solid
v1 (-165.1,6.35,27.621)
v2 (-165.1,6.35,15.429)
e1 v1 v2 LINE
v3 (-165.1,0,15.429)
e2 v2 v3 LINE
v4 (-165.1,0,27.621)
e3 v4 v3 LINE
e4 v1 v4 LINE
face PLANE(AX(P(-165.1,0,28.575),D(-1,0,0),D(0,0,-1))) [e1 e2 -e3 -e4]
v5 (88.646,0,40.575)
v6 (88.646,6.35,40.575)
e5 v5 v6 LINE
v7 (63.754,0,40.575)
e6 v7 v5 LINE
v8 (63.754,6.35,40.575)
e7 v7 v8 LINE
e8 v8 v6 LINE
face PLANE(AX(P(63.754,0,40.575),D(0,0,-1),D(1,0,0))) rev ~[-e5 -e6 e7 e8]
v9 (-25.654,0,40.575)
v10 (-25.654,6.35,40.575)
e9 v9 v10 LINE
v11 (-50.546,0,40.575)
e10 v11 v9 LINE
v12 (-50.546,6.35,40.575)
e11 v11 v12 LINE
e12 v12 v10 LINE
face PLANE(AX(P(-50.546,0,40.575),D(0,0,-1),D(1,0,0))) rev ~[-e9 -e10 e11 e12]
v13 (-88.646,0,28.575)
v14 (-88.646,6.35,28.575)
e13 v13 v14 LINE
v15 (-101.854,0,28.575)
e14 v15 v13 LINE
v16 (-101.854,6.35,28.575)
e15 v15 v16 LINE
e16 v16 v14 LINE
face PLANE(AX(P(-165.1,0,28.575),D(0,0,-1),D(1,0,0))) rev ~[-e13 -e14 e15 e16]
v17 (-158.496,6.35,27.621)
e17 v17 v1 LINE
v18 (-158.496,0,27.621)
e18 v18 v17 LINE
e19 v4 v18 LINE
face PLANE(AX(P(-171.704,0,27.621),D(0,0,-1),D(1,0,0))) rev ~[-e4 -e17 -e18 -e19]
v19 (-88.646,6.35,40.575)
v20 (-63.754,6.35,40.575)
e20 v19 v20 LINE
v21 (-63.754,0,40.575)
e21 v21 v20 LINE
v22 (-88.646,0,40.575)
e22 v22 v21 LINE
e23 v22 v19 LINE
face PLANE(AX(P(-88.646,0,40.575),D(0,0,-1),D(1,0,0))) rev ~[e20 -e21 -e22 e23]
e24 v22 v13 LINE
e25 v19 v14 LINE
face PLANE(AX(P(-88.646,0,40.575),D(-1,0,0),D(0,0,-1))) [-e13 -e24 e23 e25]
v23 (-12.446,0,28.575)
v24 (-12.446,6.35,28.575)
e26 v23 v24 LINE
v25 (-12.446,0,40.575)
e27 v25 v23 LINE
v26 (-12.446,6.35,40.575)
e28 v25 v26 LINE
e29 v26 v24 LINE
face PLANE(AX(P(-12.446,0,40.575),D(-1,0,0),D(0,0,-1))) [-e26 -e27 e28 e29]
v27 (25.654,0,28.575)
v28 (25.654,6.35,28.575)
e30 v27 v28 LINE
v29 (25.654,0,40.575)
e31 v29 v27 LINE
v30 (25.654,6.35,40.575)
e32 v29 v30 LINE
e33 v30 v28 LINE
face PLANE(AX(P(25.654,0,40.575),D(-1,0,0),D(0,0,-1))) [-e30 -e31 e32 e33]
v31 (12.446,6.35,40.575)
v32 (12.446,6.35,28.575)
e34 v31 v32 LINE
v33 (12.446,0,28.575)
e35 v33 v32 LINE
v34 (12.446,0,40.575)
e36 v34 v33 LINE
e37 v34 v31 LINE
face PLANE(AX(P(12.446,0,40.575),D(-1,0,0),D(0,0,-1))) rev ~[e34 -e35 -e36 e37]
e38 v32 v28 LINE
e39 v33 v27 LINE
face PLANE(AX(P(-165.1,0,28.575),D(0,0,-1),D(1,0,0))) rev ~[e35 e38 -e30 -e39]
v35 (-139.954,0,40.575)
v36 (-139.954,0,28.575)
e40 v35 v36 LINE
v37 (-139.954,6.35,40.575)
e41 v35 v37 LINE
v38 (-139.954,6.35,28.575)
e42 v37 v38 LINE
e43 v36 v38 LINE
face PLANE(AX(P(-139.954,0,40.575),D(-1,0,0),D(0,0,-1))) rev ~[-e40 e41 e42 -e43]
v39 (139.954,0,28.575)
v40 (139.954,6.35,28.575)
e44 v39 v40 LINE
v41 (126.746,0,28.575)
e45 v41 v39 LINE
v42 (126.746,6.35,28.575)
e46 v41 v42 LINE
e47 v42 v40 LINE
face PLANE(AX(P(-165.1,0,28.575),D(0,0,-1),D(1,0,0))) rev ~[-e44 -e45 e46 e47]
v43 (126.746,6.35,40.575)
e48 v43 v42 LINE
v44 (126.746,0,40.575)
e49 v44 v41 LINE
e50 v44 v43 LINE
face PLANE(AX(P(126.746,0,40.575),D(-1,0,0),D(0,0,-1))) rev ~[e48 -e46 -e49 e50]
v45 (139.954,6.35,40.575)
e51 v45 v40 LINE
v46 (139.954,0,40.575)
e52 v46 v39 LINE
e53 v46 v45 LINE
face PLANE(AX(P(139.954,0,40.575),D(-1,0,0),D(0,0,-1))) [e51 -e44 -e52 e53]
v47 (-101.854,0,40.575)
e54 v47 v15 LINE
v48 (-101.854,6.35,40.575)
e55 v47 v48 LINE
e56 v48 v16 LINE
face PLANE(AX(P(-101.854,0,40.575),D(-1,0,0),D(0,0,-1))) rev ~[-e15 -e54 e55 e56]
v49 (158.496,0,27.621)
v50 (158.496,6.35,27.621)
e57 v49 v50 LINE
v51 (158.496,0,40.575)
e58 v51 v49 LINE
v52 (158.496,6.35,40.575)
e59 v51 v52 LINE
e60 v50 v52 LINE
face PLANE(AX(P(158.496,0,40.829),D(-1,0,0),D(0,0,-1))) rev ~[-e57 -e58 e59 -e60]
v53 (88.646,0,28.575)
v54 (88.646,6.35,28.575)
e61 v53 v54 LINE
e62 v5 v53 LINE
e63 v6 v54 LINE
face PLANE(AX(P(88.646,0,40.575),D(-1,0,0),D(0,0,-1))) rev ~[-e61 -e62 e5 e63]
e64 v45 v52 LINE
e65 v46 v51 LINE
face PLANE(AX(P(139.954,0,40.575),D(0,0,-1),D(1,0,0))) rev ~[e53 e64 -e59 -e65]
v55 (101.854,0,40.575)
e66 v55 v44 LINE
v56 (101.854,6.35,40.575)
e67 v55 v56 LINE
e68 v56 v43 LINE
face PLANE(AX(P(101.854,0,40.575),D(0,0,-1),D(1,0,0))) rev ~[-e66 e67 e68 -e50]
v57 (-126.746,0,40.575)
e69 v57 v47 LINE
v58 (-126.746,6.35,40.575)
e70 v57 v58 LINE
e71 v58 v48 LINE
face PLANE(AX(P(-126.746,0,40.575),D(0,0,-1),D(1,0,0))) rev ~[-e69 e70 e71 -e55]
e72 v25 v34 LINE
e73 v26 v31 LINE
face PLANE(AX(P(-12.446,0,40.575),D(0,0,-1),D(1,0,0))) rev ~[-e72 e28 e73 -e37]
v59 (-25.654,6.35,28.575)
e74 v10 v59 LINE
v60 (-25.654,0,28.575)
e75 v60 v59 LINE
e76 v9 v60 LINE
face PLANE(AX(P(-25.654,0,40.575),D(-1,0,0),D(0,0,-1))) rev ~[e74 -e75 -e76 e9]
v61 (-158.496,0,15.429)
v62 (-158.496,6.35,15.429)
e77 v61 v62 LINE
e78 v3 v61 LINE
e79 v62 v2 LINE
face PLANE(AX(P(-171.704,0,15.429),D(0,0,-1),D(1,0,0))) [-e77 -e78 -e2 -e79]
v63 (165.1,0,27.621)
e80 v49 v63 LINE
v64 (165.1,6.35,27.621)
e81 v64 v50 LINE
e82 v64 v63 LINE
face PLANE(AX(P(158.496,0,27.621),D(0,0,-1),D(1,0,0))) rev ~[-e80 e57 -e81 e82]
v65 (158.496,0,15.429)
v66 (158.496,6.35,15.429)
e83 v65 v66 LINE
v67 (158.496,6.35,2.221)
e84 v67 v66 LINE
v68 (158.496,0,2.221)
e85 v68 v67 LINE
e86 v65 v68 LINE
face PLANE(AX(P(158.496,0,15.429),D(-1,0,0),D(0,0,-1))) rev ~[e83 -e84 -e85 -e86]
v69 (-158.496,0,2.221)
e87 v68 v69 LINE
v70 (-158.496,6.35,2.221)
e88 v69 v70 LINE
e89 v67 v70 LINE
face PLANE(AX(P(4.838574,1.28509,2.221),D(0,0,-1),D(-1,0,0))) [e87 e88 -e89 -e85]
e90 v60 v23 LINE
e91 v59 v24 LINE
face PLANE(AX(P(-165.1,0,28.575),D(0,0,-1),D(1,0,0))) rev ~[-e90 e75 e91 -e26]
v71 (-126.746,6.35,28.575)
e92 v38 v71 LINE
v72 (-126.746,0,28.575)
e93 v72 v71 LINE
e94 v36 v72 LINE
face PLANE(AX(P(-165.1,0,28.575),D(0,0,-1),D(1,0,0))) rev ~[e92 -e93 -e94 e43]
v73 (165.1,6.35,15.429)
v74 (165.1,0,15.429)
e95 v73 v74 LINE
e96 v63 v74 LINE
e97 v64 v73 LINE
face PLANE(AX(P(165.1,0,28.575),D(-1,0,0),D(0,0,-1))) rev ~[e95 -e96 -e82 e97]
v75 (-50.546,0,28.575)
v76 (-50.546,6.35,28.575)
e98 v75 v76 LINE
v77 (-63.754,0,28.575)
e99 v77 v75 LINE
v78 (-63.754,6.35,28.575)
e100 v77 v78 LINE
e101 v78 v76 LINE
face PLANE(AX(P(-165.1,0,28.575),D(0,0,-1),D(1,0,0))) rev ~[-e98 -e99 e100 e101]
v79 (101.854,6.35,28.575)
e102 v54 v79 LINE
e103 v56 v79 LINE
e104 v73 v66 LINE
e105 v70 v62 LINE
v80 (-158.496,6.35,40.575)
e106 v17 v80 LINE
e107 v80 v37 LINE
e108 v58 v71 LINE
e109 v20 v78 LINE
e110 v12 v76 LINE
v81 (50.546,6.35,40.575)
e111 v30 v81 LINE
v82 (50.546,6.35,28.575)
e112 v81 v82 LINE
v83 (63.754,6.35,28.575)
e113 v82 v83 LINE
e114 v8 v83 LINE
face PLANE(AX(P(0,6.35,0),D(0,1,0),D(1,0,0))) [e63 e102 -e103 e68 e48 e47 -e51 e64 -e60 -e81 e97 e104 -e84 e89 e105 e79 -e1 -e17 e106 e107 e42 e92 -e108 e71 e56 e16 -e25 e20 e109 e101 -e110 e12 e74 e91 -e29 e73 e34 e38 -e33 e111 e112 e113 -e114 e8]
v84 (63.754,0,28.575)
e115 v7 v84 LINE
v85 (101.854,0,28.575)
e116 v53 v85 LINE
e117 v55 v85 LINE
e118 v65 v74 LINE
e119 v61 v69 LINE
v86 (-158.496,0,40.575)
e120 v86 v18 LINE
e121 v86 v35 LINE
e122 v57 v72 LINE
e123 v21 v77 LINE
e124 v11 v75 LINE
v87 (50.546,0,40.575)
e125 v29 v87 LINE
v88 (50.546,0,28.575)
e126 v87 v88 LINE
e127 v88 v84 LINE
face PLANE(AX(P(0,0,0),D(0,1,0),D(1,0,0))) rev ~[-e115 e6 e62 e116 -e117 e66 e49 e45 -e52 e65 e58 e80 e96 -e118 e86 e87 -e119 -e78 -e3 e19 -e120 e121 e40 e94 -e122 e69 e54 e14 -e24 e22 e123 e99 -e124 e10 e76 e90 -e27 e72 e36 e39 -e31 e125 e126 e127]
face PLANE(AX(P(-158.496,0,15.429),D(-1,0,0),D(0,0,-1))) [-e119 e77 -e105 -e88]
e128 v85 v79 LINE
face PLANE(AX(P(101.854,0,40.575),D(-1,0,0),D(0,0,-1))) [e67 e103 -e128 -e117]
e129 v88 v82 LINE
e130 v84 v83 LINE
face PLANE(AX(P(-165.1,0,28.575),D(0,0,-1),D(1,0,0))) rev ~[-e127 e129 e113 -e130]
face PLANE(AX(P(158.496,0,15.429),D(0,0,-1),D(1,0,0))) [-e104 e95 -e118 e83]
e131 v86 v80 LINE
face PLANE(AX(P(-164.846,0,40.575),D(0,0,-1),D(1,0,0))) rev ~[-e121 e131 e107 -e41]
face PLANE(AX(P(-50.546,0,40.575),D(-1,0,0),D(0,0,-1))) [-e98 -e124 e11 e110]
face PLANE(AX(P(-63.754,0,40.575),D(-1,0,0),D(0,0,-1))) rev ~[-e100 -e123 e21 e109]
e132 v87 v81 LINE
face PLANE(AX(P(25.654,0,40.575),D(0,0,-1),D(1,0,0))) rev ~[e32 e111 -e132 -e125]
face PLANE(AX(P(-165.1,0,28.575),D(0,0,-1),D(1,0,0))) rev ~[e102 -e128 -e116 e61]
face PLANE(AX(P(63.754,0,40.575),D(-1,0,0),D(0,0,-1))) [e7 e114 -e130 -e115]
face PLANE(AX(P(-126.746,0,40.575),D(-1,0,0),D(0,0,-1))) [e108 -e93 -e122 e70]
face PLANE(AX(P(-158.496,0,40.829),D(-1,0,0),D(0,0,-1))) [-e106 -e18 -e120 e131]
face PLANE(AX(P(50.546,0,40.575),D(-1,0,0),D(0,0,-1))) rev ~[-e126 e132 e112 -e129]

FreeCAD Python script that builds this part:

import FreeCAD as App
import Part
import Sketcher
from FreeCAD import Vector
Q = App.Units.Quantity


def add_polygon(sketch, points):
    """Adds a closed chain of lines whose ends are joined by coincident constraints."""
    first, n = sketch.GeometryCount, len(points)
    for a, b in zip(points, points[1:] + points[:1]):
        sketch.addGeometry(Part.LineSegment(App.Vector(*a, 0), App.Vector(*b, 0)), False)
    for i in range(n):
        sketch.addConstraint(Sketcher.Constraint("Coincident", first + i, 2, first + (i + 1) % n, 1))

doc = App.newDocument("Part")
body = doc.addObject("PartDesign::Body", "Body")

# Sketch on XZ plane
sketch1 = body.newObject("Sketcher::SketchObject", "Sketch")
sketch1.AttachmentSupport = (doc.getObject("XZ_Plane"), [""])
sketch1.MapMode = "FlatFace"
add_polygon(sketch1, [(-165, -29), (-165, 29), (165, 29), (165, -29)])  # lines 0-3
sketch1.addConstraint(Sketcher.Constraint("Vertical", 0))
sketch1.addConstraint(Sketcher.Constraint("Horizontal", 1))
sketch1.addConstraint(Sketcher.Constraint("Vertical", 2))
sketch1.addConstraint(Sketcher.Constraint("Horizontal", 3))
sketch1.addConstraint(Sketcher.Constraint("Symmetric", 0, 2, 2, 2, -1, 1))
sketch1.addConstraint(Sketcher.Constraint("DistanceX", 1, 1, 1, 2, Q("13 in")))
sketch1.addConstraint(Sketcher.Constraint("DistanceY", 0, 1, 0, 2, Q("2.25 in")))
pad1 = body.newObject("PartDesign::Pad", "Pad")
pad1.Profile = sketch1
pad1.Length = Q("0.25 in")
pad1.Reversed = True

# Sketch on XZ plane
sketch2 = body.newObject("Sketcher::SketchObject", "Sketch001")
sketch2.AttachmentSupport = (doc.getObject("XZ_Plane"), [""])
sketch2.MapMode = "FlatFace"
add_polygon(sketch2, [(-127, 29), (-127, 41), (-102, 41), (-102, 29)])  # lines 0-3
add_polygon(sketch2, [(-89, 29), (-89, 41), (-64, 41), (-64, 29)])  # lines 4-7
add_polygon(sketch2, [(-51, 29), (-51, 41), (-26, 41), (-26, 29)])  # lines 8-11
add_polygon(sketch2, [(-12, 29), (-12, 41), (12, 41), (12, 29)])  # lines 12-15
add_polygon(sketch2, [(26, 29), (26, 41), (51, 41), (51, 29)])  # lines 16-19
add_polygon(sketch2, [(64, 29), (64, 41), (89, 41), (89, 29)])  # lines 20-23
add_polygon(sketch2, [(102, 29), (102, 41), (127, 41), (127, 29)])  # lines 24-27
add_polygon(sketch2, [(140, 29), (140, 41), (165, 41), (165, 29)])  # lines 28-31
add_polygon(sketch2, [(-165, 29), (-165, 41), (-140, 41), (-140, 29)])  # lines 32-35
sketch2.addConstraint(Sketcher.Constraint("Vertical", 0))
sketch2.addConstraint(Sketcher.Constraint("Horizontal", 1))
sketch2.addConstraint(Sketcher.Constraint("Vertical", 2))
sketch2.addConstraint(Sketcher.Constraint("Horizontal", 3))
sketch2.addConstraint(Sketcher.Constraint("Vertical", 4))
sketch2.addConstraint(Sketcher.Constraint("Horizontal", 5))
sketch2.addConstraint(Sketcher.Constraint("Vertical", 6))
sketch2.addConstraint(Sketcher.Constraint("Horizontal", 7))
sketch2.addConstraint(Sketcher.Constraint("Vertical", 8))
sketch2.addConstraint(Sketcher.Constraint("Horizontal", 9))
sketch2.addConstraint(Sketcher.Constraint("Vertical", 10))
sketch2.addConstraint(Sketcher.Constraint("Horizontal", 11))
sketch2.addConstraint(Sketcher.Constraint("Vertical", 12))
sketch2.addConstraint(Sketcher.Constraint("Horizontal", 13))
sketch2.addConstraint(Sketcher.Constraint("Vertical", 14))
sketch2.addConstraint(Sketcher.Constraint("Horizontal", 15))
sketch2.addConstraint(Sketcher.Constraint("Vertical", 16))
sketch2.addConstraint(Sketcher.Constraint("Horizontal", 17))
sketch2.addConstraint(Sketcher.Constraint("Vertical", 18))
sketch2.addConstraint(Sketcher.Constraint("Horizontal", 19))
sketch2.addConstraint(Sketcher.Constraint("Vertical", 20))
sketch2.addConstraint(Sketcher.Constraint("Horizontal", 21))
sketch2.addConstraint(Sketcher.Constraint("Vertical", 22))
sketch2.addConstraint(Sketcher.Constraint("Horizontal", 23))
sketch2.addConstraint(Sketcher.Constraint("Vertical", 24))
sketch2.addConstraint(Sketcher.Constraint("Horizontal", 25))
sketch2.addConstraint(Sketcher.Constraint("Vertical", 26))
sketch2.addConstraint(Sketcher.Constraint("Horizontal", 27))
sketch2.addConstraint(Sketcher.Constraint("Vertical", 28))
sketch2.addConstraint(Sketcher.Constraint("Horizontal", 29))
sketch2.addConstraint(Sketcher.Constraint("Vertical", 30))
sketch2.addConstraint(Sketcher.Constraint("Horizontal", 31))
sketch2.addConstraint(Sketcher.Constraint("Vertical", 32))
sketch2.addConstraint(Sketcher.Constraint("Horizontal", 33))
sketch2.addConstraint(Sketcher.Constraint("Vertical", 34))
sketch2.addConstraint(Sketcher.Constraint("Horizontal", 35))
sketch2.addConstraint(Sketcher.Constraint("Symmetric", 9, 2, 16, 2, -2))
sketch2.addConstraint(Sketcher.Constraint("Symmetric", 11, 2, 18, 2, -2))
sketch2.addConstraint(Sketcher.Constraint("Symmetric", 5, 2, 20, 2, -2))
sketch2.addConstraint(Sketcher.Constraint("Symmetric", 7, 2, 22, 2, -2))
sketch2.addConstraint(Sketcher.Constraint("Symmetric", 1, 2, 24, 2, -2))
sketch2.addConstraint(Sketcher.Constraint("Symmetric", 3, 2, 26, 2, -2))
sketch2.addConstraint(Sketcher.Constraint("Symmetric", 29, 2, 32, 2, -2))
sketch2.addConstraint(Sketcher.Constraint("Symmetric", 31, 2, 34, 2, -2))
sketch2.addConstraint(Sketcher.Constraint("Horizontal", 1, 2, 4, 2))
sketch2.addConstraint(Sketcher.Constraint("Horizontal", 3, 2, 6, 2))
sketch2.addConstraint(Sketcher.Constraint("Horizontal", 5, 2, 8, 2))
sketch2.addConstraint(Sketcher.Constraint("Horizontal", 7, 2, 10, 2))
sketch2.addConstraint(Sketcher.Constraint("Horizontal", 9, 2, 12, 2))
sketch2.addConstraint(Sketcher.Constraint("Horizontal", 11, 2, 14, 2))
sketch2.addConstraint(Sketcher.Constraint("Horizontal", 25, 2, 28, 2))
sketch2.addConstraint(Sketcher.Constraint("Horizontal", 27, 2, 30, 2))
sketch2.addConstraint(Sketcher.Constraint("Equal", 3, 5))
sketch2.addConstraint(Sketcher.Constraint("Equal", 7, 9))
sketch2.addConstraint(Sketcher.Constraint("Equal", 11, 13))
sketch2.addConstraint(Sketcher.Constraint("Equal", 27, 29))
sketch2.addConstraint(Sketcher.Constraint("DistanceX", 32, 2, 4, 2, Q("3 in")))
sketch2.addConstraint(Sketcher.Constraint("DistanceX", 1, 1, 1, 2, Q("0.98 in")))
sketch2.addConstraint(Sketcher.Constraint("DistanceX", 0, 2, 4, 2, Q("1.5 in")))
sketch2.addConstraint(Sketcher.Constraint("DistanceX", 4, 2, 8, 2, Q("1.5 in")))
sketch2.addConstraint(Sketcher.Constraint("DistanceX", 8, 2, 12, 2, Q("1.5 in")))
sketch2.addConstraint(Sketcher.Constraint("DistanceX", 12, 2, 16, 2, Q("1.5 in")))
sketch2.addConstraint(Sketcher.Constraint("DistanceY", -1, 1, 2, 2, Q("1.125 in")))
sketch2.addConstraint(Sketcher.Constraint("DistanceY", 0, 1, 0, 2, 12.0))
pad2 = body.newObject("PartDesign::Pad", "Pad001")
pad2.Profile = sketch2
pad2.Length = Q("0.25 in")
pad2.Reversed = True

# Sketch on XZ plane
sketch3 = body.newObject("Sketcher::SketchObject", "Sketch002")
sketch3.AttachmentSupport = (doc.getObject("XZ_Plane"), [""])
sketch3.MapMode = "FlatFace"
add_polygon(sketch3, [(158, -23), (158, -10), (172, -10), (172, -23)])  # lines 0-3
add_polygon(sketch3, [(-172, 28), (-172, 41), (-158, 41), (-158, 28)])  # lines 4-7
add_polygon(sketch3, [(158, 2), (158, 15), (172, 15), (172, 2)])  # lines 8-11
add_polygon(sketch3, [(158, 28), (158, 41), (172, 41), (172, 28)])  # lines 12-15
add_polygon(sketch3, [(-172, 2), (-172, 15), (-158, 15), (-158, 2)])  # lines 16-19
add_polygon(sketch3, [(-172, -23), (-172, -10), (-158, -10), (-158, -23)])  # lines 20-23
sketch3.addConstraint(Sketcher.Constraint("Vertical", 0))
sketch3.addConstraint(Sketcher.Constraint("Horizontal", 1))
sketch3.addConstraint(Sketcher.Constraint("Vertical", 2))
sketch3.addConstraint(Sketcher.Constraint("Horizontal", 3))
sketch3.addConstraint(Sketcher.Constraint("Vertical", 4))
sketch3.addConstraint(Sketcher.Constraint("Horizontal", 5))
sketch3.addConstraint(Sketcher.Constraint("Vertical", 6))
sketch3.addConstraint(Sketcher.Constraint("Horizontal", 7))
sketch3.addConstraint(Sketcher.Constraint("Vertical", 8))
sketch3.addConstraint(Sketcher.Constraint("Horizontal", 9))
sketch3.addConstraint(Sketcher.Constraint("Vertical", 10))
sketch3.addConstraint(Sketcher.Constraint("Horizontal", 11))
sketch3.addConstraint(Sketcher.Constraint("Vertical", 12))
sketch3.addConstraint(Sketcher.Constraint("Horizontal", 13))
sketch3.addConstraint(Sketcher.Constraint("Vertical", 14))
sketch3.addConstraint(Sketcher.Constraint("Horizontal", 15))
sketch3.addConstraint(Sketcher.Constraint("Vertical", 16))
sketch3.addConstraint(Sketcher.Constraint("Horizontal", 17))
sketch3.addConstraint(Sketcher.Constraint("Vertical", 18))
sketch3.addConstraint(Sketcher.Constraint("Horizontal", 19))
sketch3.addConstraint(Sketcher.Constraint("Vertical", 20))
sketch3.addConstraint(Sketcher.Constraint("Horizontal", 21))
sketch3.addConstraint(Sketcher.Constraint("Vertical", 22))
sketch3.addConstraint(Sketcher.Constraint("Horizontal", 23))
sketch3.addConstraint(Sketcher.Constraint("Symmetric", 5, 2, 12, 2, -2))
sketch3.addConstraint(Sketcher.Constraint("Symmetric", 7, 2, 14, 2, -2))
sketch3.addConstraint(Sketcher.Constraint("Symmetric", 9, 2, 16, 2, -2))
sketch3.addConstraint(Sketcher.Constraint("Symmetric", 11, 2, 18, 2, -2))
sketch3.addConstraint(Sketcher.Constraint("Symmetric", 1, 2, 20, 2, -2))
sketch3.addConstraint(Sketcher.Constraint("Symmetric", 3, 2, 22, 2, -2))
sketch3.addConstraint(Sketcher.Constraint("Vertical", 3, 2, 8, 2))
sketch3.addConstraint(Sketcher.Constraint("Vertical", 2, 2, 9, 2))
sketch3.addConstraint(Sketcher.Constraint("Vertical", 11, 2, 12, 2))
sketch3.addConstraint(Sketcher.Constraint("Vertical", 10, 2, 13, 2))
sketch3.addConstraint(Sketcher.Constraint("Equal", 23, 0))
sketch3.addConstraint(Sketcher.Constraint("Equal", 2, 4))
sketch3.addConstraint(Sketcher.Constraint("Equal", 6, 8))
sketch3.addConstraint(Sketcher.Constraint("DistanceX", 4, 2, 0, 2, Q("13 in")))
sketch3.addConstraint(Sketcher.Constraint("DistanceY", 0, 2, 4, 2, Q("2 in")))
sketch3.addConstraint(Sketcher.Constraint("DistanceY", 0, 2, 8, 2, Q("1 in")))
sketch3.addConstraint(Sketcher.Constraint("DistanceX", 1, 1, 1, 2, Q("0.52 in")))
sketch3.addConstraint(Sketcher.Constraint("DistanceY", 0, 2, -1, 1, 9.971))
pocket1 = body.newObject("PartDesign::Pocket", "Pocket")
pocket1.Profile = sketch3
pocket1.Type = "ThroughAll"

# Sketch on XY plane
sketch4 = body.newObject("Sketcher::SketchObject", "Sketch003")
sketch4.AttachmentSupport = (doc.getObject("XY_Plane"), [""])
sketch4.MapMode = "FlatFace"
sketch4.AttachmentOffset = App.Placement(Vector(0, 0, -1.125 * 25.4), App.Rotation())
add_polygon(sketch4, [(188, 20), (188, -17), (-178, -17), (-178, 20)])  # lines 0-3
sketch4.addConstraint(Sketcher.Constraint("Vertical", 0))
sketch4.addConstraint(Sketcher.Constraint("Horizontal", 1))
sketch4.addConstraint(Sketcher.Constraint("Vertical", 2))
sketch4.addConstraint(Sketcher.Constraint("Horizontal", 3))
sketch4.addConstraint(Sketcher.Constraint("DistanceX", 1, 2, 1, 1, 365.344823))
sketch4.addConstraint(Sketcher.Constraint("DistanceY", 0, 2, 0, 1, 36.987593))
sketch4.addConstraint(Sketcher.Constraint("DistanceX", -1, 1, 0, 2, 187.510985))
sketch4.addConstraint(Sketcher.Constraint("DistanceY", 0, 2, -1, 1, 17.208707))
pocket2 = body.newObject("PartDesign::Pocket", "Pocket001")
pocket2.Profile = sketch4
pocket2.Length = 30.796
pocket2.Reversed = True

doc.recompute()
